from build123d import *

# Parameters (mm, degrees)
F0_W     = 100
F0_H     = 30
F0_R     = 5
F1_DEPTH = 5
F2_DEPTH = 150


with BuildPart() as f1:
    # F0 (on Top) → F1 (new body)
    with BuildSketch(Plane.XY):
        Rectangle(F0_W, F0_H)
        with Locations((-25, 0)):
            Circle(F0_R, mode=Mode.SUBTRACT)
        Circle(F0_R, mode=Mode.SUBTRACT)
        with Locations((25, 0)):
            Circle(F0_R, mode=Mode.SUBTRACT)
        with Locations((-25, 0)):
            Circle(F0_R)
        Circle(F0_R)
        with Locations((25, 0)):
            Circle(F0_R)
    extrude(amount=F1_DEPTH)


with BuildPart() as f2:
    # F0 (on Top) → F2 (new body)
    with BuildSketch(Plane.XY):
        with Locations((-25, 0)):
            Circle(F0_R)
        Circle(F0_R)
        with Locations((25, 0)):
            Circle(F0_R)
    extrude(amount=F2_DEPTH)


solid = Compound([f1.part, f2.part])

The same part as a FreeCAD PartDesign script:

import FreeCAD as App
import Part
import Sketcher
from FreeCAD import Vector
Q = App.Units.Quantity

doc = App.newDocument("Part")
body = doc.addObject("PartDesign::Body", "Body")

# Sketch on XY plane
sketch1 = body.newObject("Sketcher::SketchObject", "Sketch")
sketch1.AttachmentSupport = (doc.getObject("XY_Plane"), [""])
sketch1.MapMode = "FlatFace"
sketch1.addGeometry([
    Part.LineSegment(Vector(-50, 15, 0), Vector(-50, -15, 0)),
    Part.LineSegment(Vector(-50, -15, 0), Vector(50, -15, 0)),
    Part.LineSegment(Vector(50, -15, 0), Vector(50, 15, 0)),
    Part.LineSegment(Vector(50, 15, 0), Vector(-50, 15, 0)),
], False)
sketch1.addConstraint([
    Sketcher.Constraint("Coincident", 0, 2, 1, 1),
    Sketcher.Constraint("Coincident", 1, 2, 2, 1),
    Sketcher.Constraint("Coincident", 2, 2, 3, 1),
    Sketcher.Constraint("Coincident", 3, 2, 0, 1),
    Sketcher.Constraint("Vertical", 0),
    Sketcher.Constraint("Horizontal", 1),
    Sketcher.Constraint("Vertical", 2),
    Sketcher.Constraint("Horizontal", 3),
    Sketcher.Constraint("Symmetric", 0, 2, 2, 2, -1, 1),
    Sketcher.Constraint("DistanceX", 1, 1, 1, 2, Q("100 mm")),
    Sketcher.Constraint("DistanceY", 0, 2, 0, 1, Q("30 mm")),
])
pad1 = body.newObject("PartDesign::Pad", "Pad")
pad1.Profile = sketch1
pad1.Length = 5
body2 = doc.addObject("PartDesign::Body", "Body001")
body2.AllowCompound = True

# Sketch on XY plane
sketch2 = body2.newObject("Sketcher::SketchObject", "Sketch001")
sketch2.AttachmentSupport = (doc.getObject("XY_Plane001"), [""])
sketch2.MapMode = "FlatFace"
sketch2.addGeometry([
    Part.Circle(Vector(-25, 0, 0), Vector(0, 0, 1), 5),
    Part.Circle(Vector(0, 0, 0), Vector(0, 0, 1), 5),
    Part.Circle(Vector(25, 0, 0), Vector(0, 0, 1), 5),
], False)
sketch2.addConstraint([
    Sketcher.Constraint("Coincident", 1, 3, -1, 1),
    Sketcher.Constraint("Equal", 0, 1),
    Sketcher.Constraint("Equal", 1, 2),
    Sketcher.Constraint("Symmetric", 0, 3, 2, 3, -1, 1),
    Sketcher.Constraint("PointOnObject", 0, 3, -1),
    Sketcher.Constraint("Diameter", 0, Q("10 mm")),
    Sketcher.Constraint("DistanceX", 0, 3, -1, 1, Q("25 mm")),
])
pad2 = body2.newObject("PartDesign::Pad", "Pad001")
pad2.Profile = sketch2
pad2.Length = 150

doc.recompute()
